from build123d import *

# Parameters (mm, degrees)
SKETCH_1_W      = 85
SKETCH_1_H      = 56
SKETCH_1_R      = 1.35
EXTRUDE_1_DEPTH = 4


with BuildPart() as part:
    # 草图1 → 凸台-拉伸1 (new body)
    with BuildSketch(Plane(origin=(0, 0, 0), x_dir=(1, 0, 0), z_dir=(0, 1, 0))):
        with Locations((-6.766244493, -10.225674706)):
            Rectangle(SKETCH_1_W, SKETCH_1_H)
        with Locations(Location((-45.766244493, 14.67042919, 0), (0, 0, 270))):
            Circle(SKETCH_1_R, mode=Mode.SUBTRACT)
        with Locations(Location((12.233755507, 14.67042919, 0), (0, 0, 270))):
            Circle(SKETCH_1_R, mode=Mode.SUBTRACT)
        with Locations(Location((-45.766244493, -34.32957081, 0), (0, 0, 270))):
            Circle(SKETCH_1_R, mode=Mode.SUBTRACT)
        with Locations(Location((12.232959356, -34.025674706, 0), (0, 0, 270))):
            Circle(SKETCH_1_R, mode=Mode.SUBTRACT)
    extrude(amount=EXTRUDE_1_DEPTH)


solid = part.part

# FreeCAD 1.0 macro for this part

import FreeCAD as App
import Part
import Sketcher
Q = App.Units.Quantity

doc = App.newDocument("Part")
body = doc.addObject("PartDesign::Body", "Body")

# Sketch on XZ plane
sketch1 = body.newObject("Sketcher::SketchObject", "Sketch")
sketch1.AttachmentSupport = (doc.getObject("XZ_Plane"), [""])
sketch1.MapMode = "FlatFace"
sketch1.addGeometry(Part.LineSegment(App.Vector(-49.266244, -17.774325, 0), App.Vector(-49.266244, 38.225675, 0)), False)
sketch1.addGeometry(Part.LineSegment(App.Vector(-49.266244, 38.225675, 0), App.Vector(35.733756, 38.225675, 0)), False)
sketch1.addGeometry(Part.LineSegment(App.Vector(35.733756, 38.225675, 0), App.Vector(35.733756, -17.774325, 0)), False)
sketch1.addGeometry(Part.LineSegment(App.Vector(35.733756, -17.774325, 0), App.Vector(-49.266244, -17.774325, 0)), False)
sketch1.addGeometry(Part.Circle(App.Vector(-45.766244, 34.329571, 0), App.Vector(0, 0, 1), 1.35), False)
sketch1.addGeometry(Part.Circle(App.Vector(12.232959, 34.025675, 0), App.Vector(0, 0, 1), 1.35), False)
sketch1.addGeometry(Part.Circle(App.Vector(-45.766244, -14.670429, 0), App.Vector(0, 0, 1), 1.35), False)
sketch1.addGeometry(Part.Circle(App.Vector(12.233756, -14.670429, 0), App.Vector(0, 0, 1), 1.35), False)
sketch1.addConstraint(Sketcher.Constraint("Coincident", 0, 2, 1, 1))
sketch1.addConstraint(Sketcher.Constraint("Coincident", 1, 2, 2, 1))
sketch1.addConstraint(Sketcher.Constraint("Coincident", 2, 2, 3, 1))
sketch1.addConstraint(Sketcher.Constraint("Coincident", 3, 2, 0, 1))
sketch1.addConstraint(Sketcher.Constraint("Vertical", 0))
sketch1.addConstraint(Sketcher.Constraint("Horizontal", 1))
sketch1.addConstraint(Sketcher.Constraint("Vertical", 2))
sketch1.addConstraint(Sketcher.Constraint("Horizontal", 3))
sketch1.addConstraint(Sketcher.Constraint("Equal", 4, 5))
sketch1.addConstraint(Sketcher.Constraint("Equal", 5, 6))
sketch1.addConstraint(Sketcher.Constraint("Equal", 6, 7))
sketch1.addConstraint(Sketcher.Constraint("Horizontal", 6, 3, 7, 3))
sketch1.addConstraint(Sketcher.Constraint("Vertical", 4, 3, 6, 3))
sketch1.addConstraint(Sketcher.Constraint("Diameter", 4, Q("2.7 mm")))
sketch1.addConstraint(Sketcher.Constraint("DistanceX", 1, 1, 1, 2, Q("85 mm")))
sketch1.addConstraint(Sketcher.Constraint("DistanceY", 0, 1, 0, 2, Q("56 mm")))
sketch1.addConstraint(Sketcher.Constraint("DistanceY", 6, 3, 4, 3, Q("49 mm")))
sketch1.addConstraint(Sketcher.Constraint("DistanceX", 6, 3, 7, 3, Q("58 mm")))
sketch1.addConstraint(Sketcher.Constraint("DistanceX", 0, 2, 4, 3, Q("3.5 mm")))
sketch1.addConstraint(Sketcher.Constraint("DistanceY", 5, 3, 0, 2, Q("4.2 mm")))
sketch1.addConstraint(Sketcher.Constraint("DistanceY", -1, 1, 4, 3, Q("34.329571 mm")))
sketch1.addConstraint(Sketcher.Constraint("DistanceX", -1, 1, 5, 3, Q("12.232959 mm")))
sketch1.addConstraint(Sketcher.Constraint("DistanceX", 4, 3, -1, 1, Q("45.766244 mm")))
sketch1.addConstraint(Sketcher.Constraint("DistanceY", -1, 1, 5, 3, Q("34.025675 mm")))
pad1 = body.newObject("PartDesign::Pad", "Pad")
pad1.Profile = sketch1
pad1.Length = 4
pad1.Reversed = True

doc.recompute()
